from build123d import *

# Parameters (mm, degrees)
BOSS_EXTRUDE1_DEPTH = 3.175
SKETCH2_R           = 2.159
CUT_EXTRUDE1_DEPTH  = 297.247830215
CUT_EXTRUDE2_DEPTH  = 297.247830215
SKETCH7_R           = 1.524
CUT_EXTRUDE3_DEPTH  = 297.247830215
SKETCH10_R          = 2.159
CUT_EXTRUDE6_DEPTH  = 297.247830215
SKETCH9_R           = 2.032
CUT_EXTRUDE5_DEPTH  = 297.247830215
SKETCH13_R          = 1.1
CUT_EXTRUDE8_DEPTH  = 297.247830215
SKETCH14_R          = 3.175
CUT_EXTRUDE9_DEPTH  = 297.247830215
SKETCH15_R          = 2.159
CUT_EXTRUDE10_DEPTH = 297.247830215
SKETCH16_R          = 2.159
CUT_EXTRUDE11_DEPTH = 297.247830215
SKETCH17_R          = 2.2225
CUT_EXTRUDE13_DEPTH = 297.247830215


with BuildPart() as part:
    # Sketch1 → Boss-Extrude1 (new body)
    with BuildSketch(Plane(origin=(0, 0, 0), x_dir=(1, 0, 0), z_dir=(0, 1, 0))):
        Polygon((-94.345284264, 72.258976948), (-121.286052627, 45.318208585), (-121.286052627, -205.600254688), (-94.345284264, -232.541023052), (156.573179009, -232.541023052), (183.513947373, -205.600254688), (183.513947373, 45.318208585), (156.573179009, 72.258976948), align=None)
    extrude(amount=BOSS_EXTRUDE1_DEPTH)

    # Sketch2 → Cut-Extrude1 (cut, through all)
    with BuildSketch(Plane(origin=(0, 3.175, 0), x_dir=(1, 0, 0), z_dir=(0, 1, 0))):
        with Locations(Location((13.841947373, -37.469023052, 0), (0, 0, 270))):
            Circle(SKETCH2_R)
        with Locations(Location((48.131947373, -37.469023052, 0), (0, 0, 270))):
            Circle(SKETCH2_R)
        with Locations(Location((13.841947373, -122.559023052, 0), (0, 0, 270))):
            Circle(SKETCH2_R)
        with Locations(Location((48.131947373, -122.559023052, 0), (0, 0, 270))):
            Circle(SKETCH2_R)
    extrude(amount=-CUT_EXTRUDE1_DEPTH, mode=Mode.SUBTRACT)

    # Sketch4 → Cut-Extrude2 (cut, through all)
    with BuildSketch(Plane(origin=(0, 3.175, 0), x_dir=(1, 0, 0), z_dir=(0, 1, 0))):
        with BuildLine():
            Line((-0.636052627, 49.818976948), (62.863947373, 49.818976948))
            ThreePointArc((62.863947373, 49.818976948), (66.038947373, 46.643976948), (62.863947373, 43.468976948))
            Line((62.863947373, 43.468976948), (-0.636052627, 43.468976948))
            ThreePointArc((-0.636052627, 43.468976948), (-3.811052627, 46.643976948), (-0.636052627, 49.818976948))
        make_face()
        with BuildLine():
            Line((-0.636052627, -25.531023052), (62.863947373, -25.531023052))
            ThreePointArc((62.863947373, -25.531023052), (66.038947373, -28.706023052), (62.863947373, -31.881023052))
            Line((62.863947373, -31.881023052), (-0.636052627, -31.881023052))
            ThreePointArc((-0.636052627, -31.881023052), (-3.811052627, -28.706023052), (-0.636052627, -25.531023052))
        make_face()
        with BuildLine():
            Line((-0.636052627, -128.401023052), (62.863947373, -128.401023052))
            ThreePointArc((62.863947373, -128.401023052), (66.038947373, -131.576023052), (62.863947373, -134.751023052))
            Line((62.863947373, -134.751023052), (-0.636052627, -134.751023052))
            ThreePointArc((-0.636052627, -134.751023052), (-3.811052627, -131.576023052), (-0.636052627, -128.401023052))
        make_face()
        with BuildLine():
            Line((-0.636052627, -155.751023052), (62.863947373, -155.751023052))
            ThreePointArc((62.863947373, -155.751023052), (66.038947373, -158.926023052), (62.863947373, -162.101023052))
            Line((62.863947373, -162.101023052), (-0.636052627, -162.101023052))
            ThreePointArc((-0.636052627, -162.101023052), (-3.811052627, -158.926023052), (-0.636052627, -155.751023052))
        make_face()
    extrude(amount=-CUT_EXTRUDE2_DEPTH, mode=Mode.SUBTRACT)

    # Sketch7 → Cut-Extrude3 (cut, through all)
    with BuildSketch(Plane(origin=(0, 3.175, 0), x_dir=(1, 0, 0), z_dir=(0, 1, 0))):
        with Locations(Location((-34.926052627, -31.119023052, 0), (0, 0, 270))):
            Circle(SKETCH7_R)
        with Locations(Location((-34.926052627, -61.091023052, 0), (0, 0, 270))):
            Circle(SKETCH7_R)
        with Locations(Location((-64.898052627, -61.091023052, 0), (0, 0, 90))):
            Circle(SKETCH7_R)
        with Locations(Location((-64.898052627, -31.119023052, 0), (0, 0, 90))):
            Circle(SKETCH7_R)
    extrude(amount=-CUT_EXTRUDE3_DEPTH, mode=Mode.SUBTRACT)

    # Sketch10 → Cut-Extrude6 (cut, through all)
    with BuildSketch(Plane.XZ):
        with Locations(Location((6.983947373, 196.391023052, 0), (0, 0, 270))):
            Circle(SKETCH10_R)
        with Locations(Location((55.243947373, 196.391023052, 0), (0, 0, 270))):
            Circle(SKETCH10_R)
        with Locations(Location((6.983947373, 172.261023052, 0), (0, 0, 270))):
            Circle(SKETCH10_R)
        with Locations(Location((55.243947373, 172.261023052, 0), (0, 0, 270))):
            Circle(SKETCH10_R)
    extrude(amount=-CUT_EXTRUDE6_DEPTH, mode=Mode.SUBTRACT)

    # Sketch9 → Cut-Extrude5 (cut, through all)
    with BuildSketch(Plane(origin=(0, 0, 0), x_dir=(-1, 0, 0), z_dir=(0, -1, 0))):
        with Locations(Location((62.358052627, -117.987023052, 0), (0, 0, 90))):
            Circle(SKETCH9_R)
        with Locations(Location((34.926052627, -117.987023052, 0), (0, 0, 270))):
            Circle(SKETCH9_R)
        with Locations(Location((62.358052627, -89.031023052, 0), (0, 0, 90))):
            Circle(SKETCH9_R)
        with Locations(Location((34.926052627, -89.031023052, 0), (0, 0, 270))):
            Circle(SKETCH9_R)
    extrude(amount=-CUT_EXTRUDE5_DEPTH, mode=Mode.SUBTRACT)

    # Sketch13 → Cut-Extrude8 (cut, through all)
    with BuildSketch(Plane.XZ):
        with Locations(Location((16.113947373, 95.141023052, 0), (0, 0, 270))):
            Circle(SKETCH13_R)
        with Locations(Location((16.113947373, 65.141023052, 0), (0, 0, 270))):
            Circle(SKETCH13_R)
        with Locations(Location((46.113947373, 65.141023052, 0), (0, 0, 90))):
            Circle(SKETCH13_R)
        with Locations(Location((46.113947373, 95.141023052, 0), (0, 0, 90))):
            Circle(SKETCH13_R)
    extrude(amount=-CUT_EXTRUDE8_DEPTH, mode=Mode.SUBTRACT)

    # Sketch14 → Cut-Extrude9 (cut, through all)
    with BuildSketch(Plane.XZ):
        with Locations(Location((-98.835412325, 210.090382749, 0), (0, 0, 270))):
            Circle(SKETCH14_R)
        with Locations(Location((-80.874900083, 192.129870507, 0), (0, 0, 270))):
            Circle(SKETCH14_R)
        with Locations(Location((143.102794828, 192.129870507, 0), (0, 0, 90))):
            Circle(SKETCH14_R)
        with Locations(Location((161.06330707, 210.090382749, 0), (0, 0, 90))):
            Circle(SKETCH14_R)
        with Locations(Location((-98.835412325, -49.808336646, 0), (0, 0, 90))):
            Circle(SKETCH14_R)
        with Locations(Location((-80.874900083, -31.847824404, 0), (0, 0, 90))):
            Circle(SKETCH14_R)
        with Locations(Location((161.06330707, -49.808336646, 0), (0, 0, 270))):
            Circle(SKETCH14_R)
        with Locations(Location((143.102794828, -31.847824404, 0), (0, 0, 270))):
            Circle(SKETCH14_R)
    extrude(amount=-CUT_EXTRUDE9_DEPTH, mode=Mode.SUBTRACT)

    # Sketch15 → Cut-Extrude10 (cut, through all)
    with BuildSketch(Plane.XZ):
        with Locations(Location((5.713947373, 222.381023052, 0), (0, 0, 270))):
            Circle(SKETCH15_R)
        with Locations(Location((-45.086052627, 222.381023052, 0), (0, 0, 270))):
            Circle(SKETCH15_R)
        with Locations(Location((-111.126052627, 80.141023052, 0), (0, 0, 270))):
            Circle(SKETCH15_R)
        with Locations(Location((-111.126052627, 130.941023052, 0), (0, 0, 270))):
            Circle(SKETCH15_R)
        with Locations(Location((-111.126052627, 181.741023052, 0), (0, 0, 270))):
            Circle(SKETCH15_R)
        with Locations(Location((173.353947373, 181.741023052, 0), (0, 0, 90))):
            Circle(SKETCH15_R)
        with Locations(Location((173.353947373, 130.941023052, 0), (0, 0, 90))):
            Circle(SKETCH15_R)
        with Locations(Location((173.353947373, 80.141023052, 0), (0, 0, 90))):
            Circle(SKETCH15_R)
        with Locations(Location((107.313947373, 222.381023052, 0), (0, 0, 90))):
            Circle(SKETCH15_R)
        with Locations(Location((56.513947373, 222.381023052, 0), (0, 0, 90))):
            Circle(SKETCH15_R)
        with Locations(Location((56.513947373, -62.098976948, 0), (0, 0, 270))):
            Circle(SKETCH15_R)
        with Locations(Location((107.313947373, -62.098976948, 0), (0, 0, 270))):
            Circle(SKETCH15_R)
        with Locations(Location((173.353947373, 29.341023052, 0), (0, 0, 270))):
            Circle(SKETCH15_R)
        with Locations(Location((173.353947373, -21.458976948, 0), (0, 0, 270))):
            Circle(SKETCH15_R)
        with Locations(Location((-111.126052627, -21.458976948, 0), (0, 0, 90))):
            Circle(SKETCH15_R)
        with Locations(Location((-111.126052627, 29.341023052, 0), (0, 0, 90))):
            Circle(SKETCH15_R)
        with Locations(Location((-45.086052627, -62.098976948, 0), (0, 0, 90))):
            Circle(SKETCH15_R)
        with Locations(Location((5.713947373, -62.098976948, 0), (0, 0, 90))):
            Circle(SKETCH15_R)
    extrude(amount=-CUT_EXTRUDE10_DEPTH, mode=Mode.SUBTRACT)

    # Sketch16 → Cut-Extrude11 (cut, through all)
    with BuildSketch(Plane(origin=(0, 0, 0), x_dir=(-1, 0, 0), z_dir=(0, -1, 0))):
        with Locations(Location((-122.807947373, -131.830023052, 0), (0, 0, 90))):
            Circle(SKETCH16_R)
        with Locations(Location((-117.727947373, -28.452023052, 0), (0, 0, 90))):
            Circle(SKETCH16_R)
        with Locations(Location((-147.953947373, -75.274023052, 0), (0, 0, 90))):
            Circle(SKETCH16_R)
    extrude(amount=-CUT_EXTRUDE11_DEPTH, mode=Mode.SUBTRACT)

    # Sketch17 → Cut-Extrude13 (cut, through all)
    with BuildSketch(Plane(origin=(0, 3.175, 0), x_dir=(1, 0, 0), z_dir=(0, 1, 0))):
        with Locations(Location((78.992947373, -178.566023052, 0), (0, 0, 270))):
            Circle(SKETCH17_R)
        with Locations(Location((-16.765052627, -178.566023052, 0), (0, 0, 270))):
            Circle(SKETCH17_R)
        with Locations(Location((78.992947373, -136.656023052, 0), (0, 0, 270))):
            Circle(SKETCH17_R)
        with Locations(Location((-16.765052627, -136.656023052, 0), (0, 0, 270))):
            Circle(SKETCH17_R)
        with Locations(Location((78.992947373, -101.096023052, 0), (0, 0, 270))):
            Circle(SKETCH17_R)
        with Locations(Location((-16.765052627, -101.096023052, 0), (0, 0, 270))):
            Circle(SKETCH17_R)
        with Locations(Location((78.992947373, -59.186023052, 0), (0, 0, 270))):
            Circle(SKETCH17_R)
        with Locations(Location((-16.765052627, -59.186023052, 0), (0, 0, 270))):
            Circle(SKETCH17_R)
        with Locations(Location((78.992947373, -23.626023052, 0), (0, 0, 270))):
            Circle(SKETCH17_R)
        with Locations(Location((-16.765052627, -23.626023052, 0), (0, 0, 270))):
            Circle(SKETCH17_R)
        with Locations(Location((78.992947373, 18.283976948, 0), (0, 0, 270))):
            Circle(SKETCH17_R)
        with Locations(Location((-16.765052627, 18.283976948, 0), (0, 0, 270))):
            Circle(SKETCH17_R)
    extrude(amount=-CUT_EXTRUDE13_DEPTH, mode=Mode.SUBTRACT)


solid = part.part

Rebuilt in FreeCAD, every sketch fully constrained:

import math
import FreeCAD as App
import Part
import Sketcher
Q = App.Units.Quantity


def add_polygon(sketch, points):
    """Adds a closed chain of lines whose ends are joined by coincident constraints."""
    first, n = sketch.GeometryCount, len(points)
    for a, b in zip(points, points[1:] + points[:1]):
        sketch.addGeometry(Part.LineSegment(App.Vector(*a, 0), App.Vector(*b, 0)), False)
    for i in range(n):
        sketch.addConstraint(Sketcher.Constraint("Coincident", first + i, 2, first + (i + 1) % n, 1))

doc = App.newDocument("Part")
body = doc.addObject("PartDesign::Body", "Body")

sketch1 = body.newObject("Sketcher::SketchObject", "Sketch")
sketch1.AttachmentSupport = (doc.getObject("XZ_Plane"), [""])
sketch1.MapMode = "FlatFace"
add_polygon(sketch1, [(-94.345284, -72.258977), (-121.286053, -45.318209), (-121.286053, 205.600255), (-94.345284, 232.541023), (156.573179, 232.541023), (183.513947, 205.600255), (183.513947, -45.318209), (156.573179, -72.258977)])
sketch1.addConstraint(Sketcher.Constraint("Vertical", 1))
sketch1.addConstraint(Sketcher.Constraint("Horizontal", 3))
sketch1.addConstraint(Sketcher.Constraint("Vertical", 5))
sketch1.addConstraint(Sketcher.Constraint("Horizontal", 7))
sketch1.addConstraint(Sketcher.Constraint("Perpendicular", 0, 2))
sketch1.addConstraint(Sketcher.Constraint("Perpendicular", 2, 4))
sketch1.addConstraint(Sketcher.Constraint("Perpendicular", 4, 6))
sketch1.addConstraint(Sketcher.Constraint("Horizontal", 1, 2, 4, 2))
sketch1.addConstraint(Sketcher.Constraint("Horizontal", 0, 2, 5, 2))
sketch1.addConstraint(Sketcher.Constraint("Vertical", 3, 2, 6, 2))
sketch1.addConstraint(Sketcher.Constraint("Vertical", 2, 2, 7, 2))
sketch1.addConstraint(Sketcher.Constraint("Equal", 7, 1))
sketch1.addConstraint(Sketcher.Constraint("DistanceX", 1, 2, 4, 2, Q("12 in")))
sketch1.addConstraint(Sketcher.Constraint("Distance", 0, Q("1.5 in")))
sketch1.addConstraint(Sketcher.Constraint("DistanceY", 0, 2, -1, 1, 45.318209))
sketch1.addConstraint(Sketcher.Constraint("DistanceX", -1, 1, 3, 2, 156.573179))
pad1 = body.newObject("PartDesign::Pad", "Pad")
pad1.Profile = sketch1
pad1.Length = Q("0.125 in")
pad1.Reversed = True

sketch2 = body.newObject("Sketcher::SketchObject", "Sketch001")
sketch2.AttachmentSupport = (doc.getObject("XZ_Plane"), [""])
sketch2.MapMode = "FlatFace"
sketch2.AttachmentOffset = App.Placement(App.Vector(0, 0, -0.125 * 25.4), App.Rotation())
sketch2.addGeometry(Part.Circle(App.Vector(13.841947, 37.469023, 0), App.Vector(0, 0, 1), 2.159), False)
sketch2.addGeometry(Part.Circle(App.Vector(48.131947, 37.469023, 0), App.Vector(0, 0, 1), 2.159), False)
sketch2.addGeometry(Part.Circle(App.Vector(13.841947, 122.559023, 0), App.Vector(0, 0, 1), 2.159), False)
sketch2.addGeometry(Part.Circle(App.Vector(48.131947, 122.559023, 0), App.Vector(0, 0, 1), 2.159), False)
sketch2.addConstraint(Sketcher.Constraint("Equal", 0, 1))
sketch2.addConstraint(Sketcher.Constraint("Equal", 1, 2))
sketch2.addConstraint(Sketcher.Constraint("Equal", 2, 3))
sketch2.addConstraint(Sketcher.Constraint("Horizontal", 0, 3, 1, 3))
sketch2.addConstraint(Sketcher.Constraint("Horizontal", 2, 3, 3, 3))
sketch2.addConstraint(Sketcher.Constraint("Vertical", 0, 3, 2, 3))
sketch2.addConstraint(Sketcher.Constraint("Vertical", 1, 3, 3, 3))
sketch2.addConstraint(Sketcher.Constraint("Diameter", 0, Q("0.17 in")))
sketch2.addConstraint(Sketcher.Constraint("DistanceX", 0, 3, 1, 3, Q("1.35 in")))
sketch2.addConstraint(Sketcher.Constraint("DistanceY", 0, 3, 2, 3, Q("3.35 in")))
sketch2.addConstraint(Sketcher.Constraint("DistanceX", -1, 1, 0, 3, 13.841947))
sketch2.addConstraint(Sketcher.Constraint("DistanceY", -1, 1, 0, 3, 37.469023))
pocket1 = body.newObject("PartDesign::Pocket", "Pocket")
pocket1.Profile = sketch2
pocket1.Type = "ThroughAll"
pocket1.Reversed = True

sketch3 = body.newObject("Sketcher::SketchObject", "Sketch002")
sketch3.AttachmentSupport = (doc.getObject("XZ_Plane"), [""])
sketch3.MapMode = "FlatFace"
sketch3.AttachmentOffset = App.Placement(App.Vector(0, 0, -0.125 * 25.4), App.Rotation())
sketch3.addGeometry(Part.LineSegment(App.Vector(62.863947, -49.818977, 0), App.Vector(-0.636053, -49.818977, 0)), False)
sketch3.addGeometry(Part.ArcOfCircle(Part.Circle(App.Vector(-0.636053, -46.643977, 0), App.Vector(0, 0, 1), 3.175), math.radians(90), math.radians(270)), False)
sketch3.addGeometry(Part.LineSegment(App.Vector(-0.636053, -43.468977, 0), App.Vector(62.863947, -43.468977, 0)), False)
sketch3.addGeometry(Part.ArcOfCircle(Part.Circle(App.Vector(62.863947, -46.643977, 0), App.Vector(0, 0, 1), 3.175), math.radians(-90), math.radians(90)), False)
sketch3.addGeometry(Part.LineSegment(App.Vector(62.863947, 25.531023, 0), App.Vector(-0.636053, 25.531023, 0)), False)
sketch3.addGeometry(Part.ArcOfCircle(Part.Circle(App.Vector(-0.636053, 28.706023, 0), App.Vector(0, 0, 1), 3.175), math.radians(90), math.radians(270)), False)
sketch3.addGeometry(Part.LineSegment(App.Vector(-0.636053, 31.881023, 0), App.Vector(62.863947, 31.881023, 0)), False)
sketch3.addGeometry(Part.ArcOfCircle(Part.Circle(App.Vector(62.863947, 28.706023, 0), App.Vector(0, 0, 1), 3.175), math.radians(-90), math.radians(90)), False)
sketch3.addGeometry(Part.LineSegment(App.Vector(62.863947, 128.401023, 0), App.Vector(-0.636053, 128.401023, 0)), False)
sketch3.addGeometry(Part.ArcOfCircle(Part.Circle(App.Vector(-0.636053, 131.576023, 0), App.Vector(0, 0, 1), 3.175), math.radians(90), math.radians(270)), False)
sketch3.addGeometry(Part.LineSegment(App.Vector(-0.636053, 134.751023, 0), App.Vector(62.863947, 134.751023, 0)), False)
sketch3.addGeometry(Part.ArcOfCircle(Part.Circle(App.Vector(62.863947, 131.576023, 0), App.Vector(0, 0, 1), 3.175), math.radians(-90), math.radians(90)), False)
sketch3.addGeometry(Part.LineSegment(App.Vector(62.863947, 155.751023, 0), App.Vector(-0.636053, 155.751023, 0)), False)
sketch3.addGeometry(Part.ArcOfCircle(Part.Circle(App.Vector(-0.636053, 158.926023, 0), App.Vector(0, 0, 1), 3.175), math.radians(90), math.radians(270)), False)
sketch3.addGeometry(Part.LineSegment(App.Vector(-0.636053, 162.101023, 0), App.Vector(62.863947, 162.101023, 0)), False)
sketch3.addGeometry(Part.ArcOfCircle(Part.Circle(App.Vector(62.863947, 158.926023, 0), App.Vector(0, 0, 1), 3.175), math.radians(-90), math.radians(90)), False)
sketch3.addConstraint(Sketcher.Constraint("Tangent", 0, 2, 1, 2))
sketch3.addConstraint(Sketcher.Constraint("Tangent", 1, 1, 2, 1))
sketch3.addConstraint(Sketcher.Constraint("Tangent", 2, 2, 3, 2))
sketch3.addConstraint(Sketcher.Constraint("Tangent", 3, 1, 0, 1))
sketch3.addConstraint(Sketcher.Constraint("Tangent", 4, 2, 5, 2))
sketch3.addConstraint(Sketcher.Constraint("Tangent", 5, 1, 6, 1))
sketch3.addConstraint(Sketcher.Constraint("Tangent", 6, 2, 7, 2))
sketch3.addConstraint(Sketcher.Constraint("Tangent", 7, 1, 4, 1))
sketch3.addConstraint(Sketcher.Constraint("Tangent", 8, 2, 9, 2))
sketch3.addConstraint(Sketcher.Constraint("Tangent", 9, 1, 10, 1))
sketch3.addConstraint(Sketcher.Constraint("Tangent", 10, 2, 11, 2))
sketch3.addConstraint(Sketcher.Constraint("Tangent", 11, 1, 8, 1))
sketch3.addConstraint(Sketcher.Constraint("Tangent", 12, 2, 13, 2))
sketch3.addConstraint(Sketcher.Constraint("Tangent", 13, 1, 14, 1))
sketch3.addConstraint(Sketcher.Constraint("Tangent", 14, 2, 15, 2))
sketch3.addConstraint(Sketcher.Constraint("Tangent", 15, 1, 12, 1))
sketch3.addConstraint(Sketcher.Constraint("Horizontal", 0))
sketch3.addConstraint(Sketcher.Constraint("Horizontal", 2))
sketch3.addConstraint(Sketcher.Constraint("Horizontal", 4))
sketch3.addConstraint(Sketcher.Constraint("Horizontal", 6))
sketch3.addConstraint(Sketcher.Constraint("Horizontal", 8))
sketch3.addConstraint(Sketcher.Constraint("Horizontal", 10))
sketch3.addConstraint(Sketcher.Constraint("Horizontal", 12))
sketch3.addConstraint(Sketcher.Constraint("Horizontal", 14))
sketch3.addConstraint(Sketcher.Constraint("Equal", 3, 5))
sketch3.addConstraint(Sketcher.Constraint("Equal", 7, 9))
sketch3.addConstraint(Sketcher.Constraint("Equal", 11, 13))
sketch3.addConstraint(Sketcher.Constraint("Vertical", 1, 3, 5, 3))
sketch3.addConstraint(Sketcher.Constraint("Vertical", 3, 3, 7, 3))
sketch3.addConstraint(Sketcher.Constraint("Vertical", 5, 3, 9, 3))
sketch3.addConstraint(Sketcher.Constraint("Vertical", 7, 3, 11, 3))
sketch3.addConstraint(Sketcher.Constraint("Vertical", 9, 3, 13, 3))
sketch3.addConstraint(Sketcher.Constraint("Vertical", 11, 3, 15, 3))
sketch3.addConstraint(Sketcher.Constraint("DistanceX", 0, 2, 0, 1, Q("2.5 in")))
sketch3.addConstraint(Sketcher.Constraint("Radius", 1, Q("0.125 in")))
sketch3.addConstraint(Sketcher.Constraint("DistanceY", 5, 1, 8, 2, Q("3.8 in")))
sketch3.addConstraint(Sketcher.Constraint("DistanceY", 1, 3, 5, 3, 75.35))
sketch3.addConstraint(Sketcher.Constraint("DistanceY", 9, 3, 13, 3, 27.35))
sketch3.addConstraint(Sketcher.Constraint("DistanceX", 1, 3, -1, 1, 0.636053))
sketch3.addConstraint(Sketcher.Constraint("DistanceY", 1, 3, -1, 1, 46.643977))
pocket2 = body.newObject("PartDesign::Pocket", "Pocket001")
pocket2.Profile = sketch3
pocket2.Type = "ThroughAll"
pocket2.Reversed = True

sketch4 = body.newObject("Sketcher::SketchObject", "Sketch003")
sketch4.AttachmentSupport = (doc.getObject("XZ_Plane"), [""])
sketch4.MapMode = "FlatFace"
sketch4.AttachmentOffset = App.Placement(App.Vector(0, 0, -0.125 * 25.4), App.Rotation())
sketch4.addGeometry(Part.Circle(App.Vector(-34.926053, 31.119023, 0), App.Vector(0, 0, 1), 1.524), False)
sketch4.addGeometry(Part.Circle(App.Vector(-34.926053, 61.091023, 0), App.Vector(0, 0, 1), 1.524), False)
sketch4.addGeometry(Part.Circle(App.Vector(-64.898053, 61.091023, 0), App.Vector(0, 0, 1), 1.524), False)
sketch4.addGeometry(Part.Circle(App.Vector(-64.898053, 31.119023, 0), App.Vector(0, 0, 1), 1.524), False)
sketch4.addConstraint(Sketcher.Constraint("Equal", 0, 1))
sketch4.addConstraint(Sketcher.Constraint("Equal", 1, 2))
sketch4.addConstraint(Sketcher.Constraint("Equal", 2, 3))
sketch4.addConstraint(Sketcher.Constraint("Horizontal", 1, 3, 2, 3))
sketch4.addConstraint(Sketcher.Constraint("Horizontal", 0, 3, 3, 3))
sketch4.addConstraint(Sketcher.Constraint("Vertical", 0, 3, 1, 3))
sketch4.addConstraint(Sketcher.Constraint("Vertical", 2, 3, 3, 3))
sketch4.addConstraint(Sketcher.Constraint("Diameter", 0, Q("0.12 in")))
sketch4.addConstraint(Sketcher.Constraint("DistanceY", 0, 3, 1, 3, Q("1.18 in")))
sketch4.addConstraint(Sketcher.Constraint("DistanceX", 2, 3, 1, 3, Q("1.18 in")))
sketch4.addConstraint(Sketcher.Constraint("DistanceX", 0, 3, -1, 1, 34.926053))
sketch4.addConstraint(Sketcher.Constraint("DistanceY", -1, 1, 0, 3, 31.119023))
pocket3 = body.newObject("PartDesign::Pocket", "Pocket002")
pocket3.Profile = sketch4
pocket3.Type = "ThroughAll"
pocket3.Reversed = True

sketch5 = body.newObject("Sketcher::SketchObject", "Sketch004")
sketch5.AttachmentSupport = (doc.getObject("XZ_Plane"), [""])
sketch5.MapMode = "FlatFace"
sketch5.addGeometry(Part.Circle(App.Vector(6.983947, 196.391023, 0), App.Vector(0, 0, 1), 2.159), False)
sketch5.addGeometry(Part.Circle(App.Vector(55.243947, 196.391023, 0), App.Vector(0, 0, 1), 2.159), False)
sketch5.addGeometry(Part.Circle(App.Vector(6.983947, 172.261023, 0), App.Vector(0, 0, 1), 2.159), False)
sketch5.addGeometry(Part.Circle(App.Vector(55.243947, 172.261023, 0), App.Vector(0, 0, 1), 2.159), False)
sketch5.addConstraint(Sketcher.Constraint("Equal", 0, 1))
sketch5.addConstraint(Sketcher.Constraint("Equal", 1, 2))
sketch5.addConstraint(Sketcher.Constraint("Equal", 2, 3))
sketch5.addConstraint(Sketcher.Constraint("Horizontal", 0, 3, 1, 3))
sketch5.addConstraint(Sketcher.Constraint("Horizontal", 2, 3, 3, 3))
sketch5.addConstraint(Sketcher.Constraint("Vertical", 0, 3, 2, 3))
sketch5.addConstraint(Sketcher.Constraint("Vertical", 1, 3, 3, 3))
sketch5.addConstraint(Sketcher.Constraint("Diameter", 0, Q("0.17 in")))
sketch5.addConstraint(Sketcher.Constraint("DistanceX", 0, 3, 1, 3, Q("1.9 in")))
sketch5.addConstraint(Sketcher.Constraint("DistanceY", 2, 3, 0, 3, Q("0.95 in")))
sketch5.addConstraint(Sketcher.Constraint("DistanceX", -1, 1, 0, 3, 6.983947))
sketch5.addConstraint(Sketcher.Constraint("DistanceY", -1, 1, 0, 3, 196.391023))
pocket4 = body.newObject("PartDesign::Pocket", "Pocket003")
pocket4.Profile = sketch5
pocket4.Type = "ThroughAll"

sketch6 = body.newObject("Sketcher::SketchObject", "Sketch005")
sketch6.AttachmentSupport = (doc.getObject("XZ_Plane"), [""])
sketch6.MapMode = "FlatFace"
sketch6.addGeometry(Part.Circle(App.Vector(-62.358053, 117.987023, 0), App.Vector(0, 0, 1), 2.032), False)
sketch6.addGeometry(Part.Circle(App.Vector(-34.926053, 117.987023, 0), App.Vector(0, 0, 1), 2.032), False)
sketch6.addGeometry(Part.Circle(App.Vector(-62.358053, 89.031023, 0), App.Vector(0, 0, 1), 2.032), False)
sketch6.addGeometry(Part.Circle(App.Vector(-34.926053, 89.031023, 0), App.Vector(0, 0, 1), 2.032), False)
sketch6.addConstraint(Sketcher.Constraint("Equal", 0, 1))
sketch6.addConstraint(Sketcher.Constraint("Equal", 1, 2))
sketch6.addConstraint(Sketcher.Constraint("Equal", 2, 3))
sketch6.addConstraint(Sketcher.Constraint("Horizontal", 0, 3, 1, 3))
sketch6.addConstraint(Sketcher.Constraint("Horizontal", 2, 3, 3, 3))
sketch6.addConstraint(Sketcher.Constraint("Vertical", 0, 3, 2, 3))
sketch6.addConstraint(Sketcher.Constraint("Vertical", 1, 3, 3, 3))
sketch6.addConstraint(Sketcher.Constraint("Diameter", 0, Q("0.16 in")))
sketch6.addConstraint(Sketcher.Constraint("DistanceX", 0, 3, 1, 3, Q("1.08 in")))
sketch6.addConstraint(Sketcher.Constraint("DistanceY", 2, 3, 0, 3, Q("1.14 in")))
sketch6.addConstraint(Sketcher.Constraint("DistanceX", 0, 3, -1, 1, 62.358053))
sketch6.addConstraint(Sketcher.Constraint("DistanceY", -1, 1, 0, 3, 117.987023))
pocket5 = body.newObject("PartDesign::Pocket", "Pocket004")
pocket5.Profile = sketch6
pocket5.Type = "ThroughAll"

sketch7 = body.newObject("Sketcher::SketchObject", "Sketch006")
sketch7.AttachmentSupport = (doc.getObject("XZ_Plane"), [""])
sketch7.MapMode = "FlatFace"
sketch7.addGeometry(Part.Circle(App.Vector(16.113947, 95.141023, 0), App.Vector(0, 0, 1), 1.1), False)
sketch7.addGeometry(Part.Circle(App.Vector(16.113947, 65.141023, 0), App.Vector(0, 0, 1), 1.1), False)
sketch7.addGeometry(Part.Circle(App.Vector(46.113947, 65.141023, 0), App.Vector(0, 0, 1), 1.1), False)
sketch7.addGeometry(Part.Circle(App.Vector(46.113947, 95.141023, 0), App.Vector(0, 0, 1), 1.1), False)
sketch7.addConstraint(Sketcher.Constraint("Equal", 0, 1))
sketch7.addConstraint(Sketcher.Constraint("Equal", 1, 2))
sketch7.addConstraint(Sketcher.Constraint("Equal", 2, 3))
sketch7.addConstraint(Sketcher.Constraint("Horizontal", 1, 3, 2, 3))
sketch7.addConstraint(Sketcher.Constraint("Horizontal", 0, 3, 3, 3))
sketch7.addConstraint(Sketcher.Constraint("Vertical", 0, 3, 1, 3))
sketch7.addConstraint(Sketcher.Constraint("Vertical", 2, 3, 3, 3))
sketch7.addConstraint(Sketcher.Constraint("Diameter", 0, 2.2))
sketch7.addConstraint(Sketcher.Constraint("DistanceY", 1, 3, 0, 3, 30.0))
sketch7.addConstraint(Sketcher.Constraint("DistanceX", 1, 3, 2, 3, 30.0))
sketch7.addConstraint(Sketcher.Constraint("DistanceX", -1, 1, 0, 3, 16.113947))
sketch7.addConstraint(Sketcher.Constraint("DistanceY", -1, 1, 0, 3, 95.141023))
pocket6 = body.newObject("PartDesign::Pocket", "Pocket005")
pocket6.Profile = sketch7
pocket6.Type = "ThroughAll"

sketch8 = body.newObject("Sketcher::SketchObject", "Sketch007")
sketch8.AttachmentSupport = (doc.getObject("XZ_Plane"), [""])
sketch8.MapMode = "FlatFace"
sketch8.addGeometry(Part.Circle(App.Vector(-98.835412, 210.090383, 0), App.Vector(0, 0, 1), 3.175), False)
sketch8.addGeometry(Part.Circle(App.Vector(-80.8749, 192.129871, 0), App.Vector(0, 0, 1), 3.175), False)
sketch8.addGeometry(Part.Circle(App.Vector(143.102795, 192.129871, 0), App.Vector(0, 0, 1), 3.175), False)
sketch8.addGeometry(Part.Circle(App.Vector(161.063307, 210.090383, 0), App.Vector(0, 0, 1), 3.175), False)
sketch8.addGeometry(Part.Circle(App.Vector(-98.835412, -49.808337, 0), App.Vector(0, 0, 1), 3.175), False)
sketch8.addGeometry(Part.Circle(App.Vector(-80.8749, -31.847824, 0), App.Vector(0, 0, 1), 3.175), False)
sketch8.addGeometry(Part.Circle(App.Vector(161.063307, -49.808337, 0), App.Vector(0, 0, 1), 3.175), False)
sketch8.addGeometry(Part.Circle(App.Vector(143.102795, -31.847824, 0), App.Vector(0, 0, 1), 3.175), False)
sketch8.addConstraint(Sketcher.Constraint("Equal", 0, 1))
sketch8.addConstraint(Sketcher.Constraint("Equal", 1, 2))
sketch8.addConstraint(Sketcher.Constraint("Equal", 2, 3))
sketch8.addConstraint(Sketcher.Constraint("Equal", 3, 4))
sketch8.addConstraint(Sketcher.Constraint("Equal", 4, 5))
sketch8.addConstraint(Sketcher.Constraint("Equal", 5, 6))
sketch8.addConstraint(Sketcher.Constraint("Equal", 6, 7))
sketch8.addConstraint(Sketcher.Constraint("Horizontal", 1, 3, 2, 3))
sketch8.addConstraint(Sketcher.Constraint("Horizontal", 0, 3, 3, 3))
sketch8.addConstraint(Sketcher.Constraint("Horizontal", 4, 3, 6, 3))
sketch8.addConstraint(Sketcher.Constraint("Horizontal", 5, 3, 7, 3))
sketch8.addConstraint(Sketcher.Constraint("Vertical", 0, 3, 4, 3))
sketch8.addConstraint(Sketcher.Constraint("Vertical", 1, 3, 5, 3))
sketch8.addConstraint(Sketcher.Constraint("Vertical", 3, 3, 6, 3))
sketch8.addConstraint(Sketcher.Constraint("Vertical", 2, 3, 7, 3))
sketch8.addConstraint(Sketcher.Constraint("Diameter", 0, Q("0.25 in")))
sketch8.addConstraint(Sketcher.Constraint("DistanceX", 1, 3, -1, 1, 80.8749))
sketch8.addConstraint(Sketcher.Constraint("DistanceY", -1, 1, 1, 3, 192.129871))
sketch8.addConstraint(Sketcher.Constraint("DistanceX", 0, 3, 3, 3, 259.898719))
sketch8.addConstraint(Sketcher.Constraint("DistanceY", 4, 3, 0, 3, 259.898719))
sketch8.addConstraint(Sketcher.Constraint("DistanceX", 0, 3, -1, 1, 98.835412))
sketch8.addConstraint(Sketcher.Constraint("DistanceY", -1, 1, 0, 3, 210.090383))
sketch8.addConstraint(Sketcher.Constraint("DistanceX", -1, 1, 2, 3, 143.102795))
sketch8.addConstraint(Sketcher.Constraint("DistanceY", 5, 3, -1, 1, 31.847824))
pocket7 = body.newObject("PartDesign::Pocket", "Pocket006")
pocket7.Profile = sketch8
pocket7.Type = "ThroughAll"

sketch9 = body.newObject("Sketcher::SketchObject", "Sketch008")
sketch9.AttachmentSupport = (doc.getObject("XZ_Plane"), [""])
sketch9.MapMode = "FlatFace"
sketch9.addGeometry(Part.Circle(App.Vector(5.713947, 222.381023, 0), App.Vector(0, 0, 1), 2.159), False)
sketch9.addGeometry(Part.Circle(App.Vector(-45.086053, 222.381023, 0), App.Vector(0, 0, 1), 2.159), False)
sketch9.addGeometry(Part.Circle(App.Vector(-111.126053, 80.141023, 0), App.Vector(0, 0, 1), 2.159), False)
sketch9.addGeometry(Part.Circle(App.Vector(-111.126053, 130.941023, 0), App.Vector(0, 0, 1), 2.159), False)
sketch9.addGeometry(Part.Circle(App.Vector(-111.126053, 181.741023, 0), App.Vector(0, 0, 1), 2.159), False)
sketch9.addGeometry(Part.Circle(App.Vector(173.353947, 181.741023, 0), App.Vector(0, 0, 1), 2.159), False)
sketch9.addGeometry(Part.Circle(App.Vector(173.353947, 130.941023, 0), App.Vector(0, 0, 1), 2.159), False)
sketch9.addGeometry(Part.Circle(App.Vector(173.353947, 80.141023, 0), App.Vector(0, 0, 1), 2.159), False)
sketch9.addGeometry(Part.Circle(App.Vector(107.313947, 222.381023, 0), App.Vector(0, 0, 1), 2.159), False)
sketch9.addGeometry(Part.Circle(App.Vector(56.513947, 222.381023, 0), App.Vector(0, 0, 1), 2.159), False)
sketch9.addGeometry(Part.Circle(App.Vector(56.513947, -62.098977, 0), App.Vector(0, 0, 1), 2.159), False)
sketch9.addGeometry(Part.Circle(App.Vector(107.313947, -62.098977, 0), App.Vector(0, 0, 1), 2.159), False)
sketch9.addGeometry(Part.Circle(App.Vector(173.353947, 29.341023, 0), App.Vector(0, 0, 1), 2.159), False)
sketch9.addGeometry(Part.Circle(App.Vector(173.353947, -21.458977, 0), App.Vector(0, 0, 1), 2.159), False)
sketch9.addGeometry(Part.Circle(App.Vector(-111.126053, -21.458977, 0), App.Vector(0, 0, 1), 2.159), False)
sketch9.addGeometry(Part.Circle(App.Vector(-111.126053, 29.341023, 0), App.Vector(0, 0, 1), 2.159), False)
sketch9.addGeometry(Part.Circle(App.Vector(-45.086053, -62.098977, 0), App.Vector(0, 0, 1), 2.159), False)
sketch9.addGeometry(Part.Circle(App.Vector(5.713947, -62.098977, 0), App.Vector(0, 0, 1), 2.159), False)
sketch9.addConstraint(Sketcher.Constraint("Equal", 0, 1))
sketch9.addConstraint(Sketcher.Constraint("Equal", 1, 2))
sketch9.addConstraint(Sketcher.Constraint("Equal", 2, 3))
sketch9.addConstraint(Sketcher.Constraint("Equal", 3, 4))
sketch9.addConstraint(Sketcher.Constraint("Equal", 4, 5))
sketch9.addConstraint(Sketcher.Constraint("Equal", 5, 6))
sketch9.addConstraint(Sketcher.Constraint("Equal", 6, 7))
sketch9.addConstraint(Sketcher.Constraint("Equal", 7, 8))
sketch9.addConstraint(Sketcher.Constraint("Equal", 8, 9))
sketch9.addConstraint(Sketcher.Constraint("Equal", 9, 10))
sketch9.addConstraint(Sketcher.Constraint("Equal", 10, 11))
sketch9.addConstraint(Sketcher.Constraint("Equal", 11, 12))
sketch9.addConstraint(Sketcher.Constraint("Equal", 12, 13))
sketch9.addConstraint(Sketcher.Constraint("Equal", 13, 14))
sketch9.addConstraint(Sketcher.Constraint("Equal", 14, 15))
sketch9.addConstraint(Sketcher.Constraint("Equal", 15, 16))
sketch9.addConstraint(Sketcher.Constraint("Equal", 16, 17))
sketch9.addConstraint(Sketcher.Constraint("Horizontal", 0, 3, 1, 3))
sketch9.addConstraint(Sketcher.Constraint("Horizontal", 4, 3, 5, 3))
sketch9.addConstraint(Sketcher.Constraint("Horizontal", 3, 3, 6, 3))
sketch9.addConstraint(Sketcher.Constraint("Horizontal", 2, 3, 7, 3))
sketch9.addConstraint(Sketcher.Constraint("Horizontal", 1, 3, 8, 3))
sketch9.addConstraint(Sketcher.Constraint("Horizontal", 8, 3, 9, 3))
sketch9.addConstraint(Sketcher.Constraint("Horizontal", 10, 3, 11, 3))
sketch9.addConstraint(Sketcher.Constraint("Horizontal", 13, 3, 14, 3))
sketch9.addConstraint(Sketcher.Constraint("Horizontal", 12, 3, 15, 3))
sketch9.addConstraint(Sketcher.Constraint("Horizontal", 11, 3, 16, 3))
sketch9.addConstraint(Sketcher.Constraint("Horizontal", 16, 3, 17, 3))
sketch9.addConstraint(Sketcher.Constraint("Vertical", 2, 3, 3, 3))
sketch9.addConstraint(Sketcher.Constraint("Vertical", 3, 3, 4, 3))
sketch9.addConstraint(Sketcher.Constraint("Vertical", 5, 3, 6, 3))
sketch9.addConstraint(Sketcher.Constraint("Vertical", 6, 3, 7, 3))
sketch9.addConstraint(Sketcher.Constraint("Vertical", 9, 3, 10, 3))
sketch9.addConstraint(Sketcher.Constraint("Vertical", 8, 3, 11, 3))
sketch9.addConstraint(Sketcher.Constraint("Vertical", 7, 3, 12, 3))
sketch9.addConstraint(Sketcher.Constraint("Vertical", 12, 3, 13, 3))
sketch9.addConstraint(Sketcher.Constraint("Vertical", 4, 3, 14, 3))
sketch9.addConstraint(Sketcher.Constraint("Vertical", 14, 3, 15, 3))
sketch9.addConstraint(Sketcher.Constraint("Vertical", 1, 3, 16, 3))
sketch9.addConstraint(Sketcher.Constraint("Vertical", 0, 3, 17, 3))
sketch9.addConstraint(Sketcher.Constraint("Diameter", 0, Q("0.17 in")))
sketch9.addConstraint(Sketcher.Constraint("DistanceX", 1, 3, 0, 3, Q("2 in")))
sketch9.addConstraint(Sketcher.Constraint("DistanceY", 2, 3, 3, 3, Q("2 in")))
sketch9.addConstraint(Sketcher.Constraint("DistanceY", 3, 3, 4, 3, Q("2 in")))
sketch9.addConstraint(Sketcher.Constraint("DistanceX", 0, 3, 8, 3, Q("4 in")))
sketch9.addConstraint(Sketcher.Constraint("DistanceX", 0, 3, 9, 3, Q("2 in")))
sketch9.addConstraint(Sketcher.Constraint("DistanceY", 12, 3, 7, 3, Q("2 in")))
sketch9.addConstraint(Sketcher.Constraint("DistanceY", 13, 3, 12, 3, Q("2 in")))
sketch9.addConstraint(Sketcher.Constraint("DistanceX", 2, 3, 1, 3, Q("2.6 in")))
sketch9.addConstraint(Sketcher.Constraint("DistanceY", 2, 3, 1, 3, Q("5.6 in")))
sketch9.addConstraint(Sketcher.Constraint("DistanceX", 0, 3, 5, 3, Q("6.6 in")))
sketch9.addConstraint(Sketcher.Constraint("DistanceY", 10, 3, 7, 3, Q("5.6 in")))
sketch9.addConstraint(Sketcher.Constraint("DistanceX", -1, 1, 0, 3, 5.713947))
sketch9.addConstraint(Sketcher.Constraint("DistanceY", -1, 1, 0, 3, 222.381023))
pocket8 = body.newObject("PartDesign::Pocket", "Pocket007")
pocket8.Profile = sketch9
pocket8.Type = "ThroughAll"

sketch10 = body.newObject("Sketcher::SketchObject", "Sketch009")
sketch10.AttachmentSupport = (doc.getObject("XZ_Plane"), [""])
sketch10.MapMode = "FlatFace"
sketch10.addGeometry(Part.Circle(App.Vector(122.807947, 131.830023, 0), App.Vector(0, 0, 1), 2.159), False)
sketch10.addGeometry(Part.Circle(App.Vector(117.727947, 28.452023, 0), App.Vector(0, 0, 1), 2.159), False)
sketch10.addGeometry(Part.Circle(App.Vector(147.953947, 75.274023, 0), App.Vector(0, 0, 1), 2.159), False)
sketch10.addConstraint(Sketcher.Constraint("Equal", 0, 1))
sketch10.addConstraint(Sketcher.Constraint("Equal", 1, 2))
sketch10.addConstraint(Sketcher.Constraint("Diameter", 0, Q("0.17 in")))
sketch10.addConstraint(Sketcher.Constraint("DistanceX", 1, 3, 0, 3, Q("0.2 in")))
sketch10.addConstraint(Sketcher.Constraint("DistanceY", 1, 3, 0, 3, Q("4.07 in")))
sketch10.addConstraint(Sketcher.Constraint("DistanceX", 1, 3, 2, 3, Q("1.19 in")))
sketch10.addConstraint(Sketcher.Constraint("DistanceY", 1, 3, 2, 3, 46.822))
sketch10.addConstraint(Sketcher.Constraint("DistanceX", -1, 1, 0, 3, 122.807947))
sketch10.addConstraint(Sketcher.Constraint("DistanceY", -1, 1, 0, 3, 131.830023))
pocket9 = body.newObject("PartDesign::Pocket", "Pocket008")
pocket9.Profile = sketch10
pocket9.Type = "ThroughAll"

sketch11 = body.newObject("Sketcher::SketchObject", "Sketch010")
sketch11.AttachmentSupport = (doc.getObject("XZ_Plane"), [""])
sketch11.MapMode = "FlatFace"
sketch11.AttachmentOffset = App.Placement(App.Vector(0, 0, -0.125 * 25.4), App.Rotation())
sketch11.addGeometry(Part.Circle(App.Vector(78.992947, 178.566023, 0), App.Vector(0, 0, 1), 2.2225), False)
sketch11.addGeometry(Part.Circle(App.Vector(-16.765053, 178.566023, 0), App.Vector(0, 0, 1), 2.2225), False)
sketch11.addGeometry(Part.Circle(App.Vector(78.992947, 136.656023, 0), App.Vector(0, 0, 1), 2.2225), False)
sketch11.addGeometry(Part.Circle(App.Vector(-16.765053, 136.656023, 0), App.Vector(0, 0, 1), 2.2225), False)
sketch11.addGeometry(Part.Circle(App.Vector(78.992947, 101.096023, 0), App.Vector(0, 0, 1), 2.2225), False)
sketch11.addGeometry(Part.Circle(App.Vector(-16.765053, 101.096023, 0), App.Vector(0, 0, 1), 2.2225), False)
sketch11.addGeometry(Part.Circle(App.Vector(78.992947, 59.186023, 0), App.Vector(0, 0, 1), 2.2225), False)
sketch11.addGeometry(Part.Circle(App.Vector(-16.765053, 59.186023, 0), App.Vector(0, 0, 1), 2.2225), False)
sketch11.addGeometry(Part.Circle(App.Vector(78.992947, 23.626023, 0), App.Vector(0, 0, 1), 2.2225), False)
sketch11.addGeometry(Part.Circle(App.Vector(-16.765053, 23.626023, 0), App.Vector(0, 0, 1), 2.2225), False)
sketch11.addGeometry(Part.Circle(App.Vector(78.992947, -18.283977, 0), App.Vector(0, 0, 1), 2.2225), False)
sketch11.addGeometry(Part.Circle(App.Vector(-16.765053, -18.283977, 0), App.Vector(0, 0, 1), 2.2225), False)
sketch11.addConstraint(Sketcher.Constraint("Equal", 0, 1))
sketch11.addConstraint(Sketcher.Constraint("Equal", 1, 2))
sketch11.addConstraint(Sketcher.Constraint("Equal", 2, 3))
sketch11.addConstraint(Sketcher.Constraint("Equal", 3, 4))
sketch11.addConstraint(Sketcher.Constraint("Equal", 4, 5))
sketch11.addConstraint(Sketcher.Constraint("Equal", 5, 6))
sketch11.addConstraint(Sketcher.Constraint("Equal", 6, 7))
sketch11.addConstraint(Sketcher.Constraint("Equal", 7, 8))
sketch11.addConstraint(Sketcher.Constraint("Equal", 8, 9))
sketch11.addConstraint(Sketcher.Constraint("Equal", 9, 10))
sketch11.addConstraint(Sketcher.Constraint("Equal", 10, 11))
sketch11.addConstraint(Sketcher.Constraint("Horizontal", 0, 3, 1, 3))
sketch11.addConstraint(Sketcher.Constraint("Horizontal", 2, 3, 3, 3))
sketch11.addConstraint(Sketcher.Constraint("Horizontal", 4, 3, 5, 3))
sketch11.addConstraint(Sketcher.Constraint("Horizontal", 6, 3, 7, 3))
sketch11.addConstraint(Sketcher.Constraint("Horizontal", 8, 3, 9, 3))
sketch11.addConstraint(Sketcher.Constraint("Horizontal", 10, 3, 11, 3))
sketch11.addConstraint(Sketcher.Constraint("Vertical", 0, 3, 2, 3))
sketch11.addConstraint(Sketcher.Constraint("Vertical", 1, 3, 3, 3))
sketch11.addConstraint(Sketcher.Constraint("Vertical", 2, 3, 4, 3))
sketch11.addConstraint(Sketcher.Constraint("Vertical", 3, 3, 5, 3))
sketch11.addConstraint(Sketcher.Constraint("Vertical", 4, 3, 6, 3))
sketch11.addConstraint(Sketcher.Constraint("Vertical", 5, 3, 7, 3))
sketch11.addConstraint(Sketcher.Constraint("Vertical", 6, 3, 8, 3))
sketch11.addConstraint(Sketcher.Constraint("Vertical", 7, 3, 9, 3))
sketch11.addConstraint(Sketcher.Constraint("Vertical", 8, 3, 10, 3))
sketch11.addConstraint(Sketcher.Constraint("Vertical", 9, 3, 11, 3))
sketch11.addConstraint(Sketcher.Constraint("Diameter", 0, Q("0.175 in")))
sketch11.addConstraint(Sketcher.Constraint("DistanceY", 4, 3, 2, 3, Q("1.4 in")))
sketch11.addConstraint(Sketcher.Constraint("DistanceY", 6, 3, 0, 3, Q("4.7 in")))
sketch11.addConstraint(Sketcher.Constraint("DistanceY", 8, 3, 6, 3, Q("1.4 in")))
sketch11.addConstraint(Sketcher.Constraint("DistanceY", 10, 3, 4, 3, Q("4.7 in")))
sketch11.addConstraint(Sketcher.Constraint("DistanceX", 1, 3, 0, 3, Q("3.77 in")))
sketch11.addConstraint(Sketcher.Constraint("DistanceY", 2, 3, 0, 3, Q("1.65 in")))
sketch11.addConstraint(Sketcher.Constraint("DistanceX", -1, 1, 0, 3, 78.992947))
sketch11.addConstraint(Sketcher.Constraint("DistanceY", -1, 1, 0, 3, 178.566023))
pocket10 = body.newObject("PartDesign::Pocket", "Pocket009")
pocket10.Profile = sketch11
pocket10.Type = "ThroughAll"
pocket10.Reversed = True

doc.recompute()
